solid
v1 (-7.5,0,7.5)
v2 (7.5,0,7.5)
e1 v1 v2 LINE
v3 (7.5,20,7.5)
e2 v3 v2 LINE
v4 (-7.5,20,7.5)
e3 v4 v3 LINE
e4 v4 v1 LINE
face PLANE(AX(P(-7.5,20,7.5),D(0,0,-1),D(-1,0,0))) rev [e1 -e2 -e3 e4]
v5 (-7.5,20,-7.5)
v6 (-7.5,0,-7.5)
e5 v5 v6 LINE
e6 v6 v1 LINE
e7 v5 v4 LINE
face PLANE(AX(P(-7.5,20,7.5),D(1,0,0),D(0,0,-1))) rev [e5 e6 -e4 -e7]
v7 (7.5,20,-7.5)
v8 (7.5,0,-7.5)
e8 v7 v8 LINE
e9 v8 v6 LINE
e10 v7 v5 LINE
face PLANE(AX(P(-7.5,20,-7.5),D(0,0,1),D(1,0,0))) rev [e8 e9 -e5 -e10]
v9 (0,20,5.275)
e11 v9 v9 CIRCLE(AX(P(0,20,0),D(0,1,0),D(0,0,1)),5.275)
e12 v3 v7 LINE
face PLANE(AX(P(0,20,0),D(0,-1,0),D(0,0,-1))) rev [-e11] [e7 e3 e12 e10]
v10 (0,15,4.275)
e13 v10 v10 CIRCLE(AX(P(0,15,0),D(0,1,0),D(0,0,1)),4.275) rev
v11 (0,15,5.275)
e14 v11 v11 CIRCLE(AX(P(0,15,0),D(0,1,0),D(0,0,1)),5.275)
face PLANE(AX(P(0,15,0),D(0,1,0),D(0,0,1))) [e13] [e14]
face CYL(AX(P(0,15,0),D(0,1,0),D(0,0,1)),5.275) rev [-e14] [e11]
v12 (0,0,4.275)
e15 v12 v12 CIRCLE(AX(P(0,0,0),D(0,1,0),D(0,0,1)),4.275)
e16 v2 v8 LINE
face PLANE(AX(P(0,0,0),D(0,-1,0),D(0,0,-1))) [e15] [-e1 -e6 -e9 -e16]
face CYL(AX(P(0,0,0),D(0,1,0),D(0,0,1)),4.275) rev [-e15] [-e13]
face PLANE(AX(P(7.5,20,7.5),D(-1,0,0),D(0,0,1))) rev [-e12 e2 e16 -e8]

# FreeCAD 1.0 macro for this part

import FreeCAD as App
import Part
import Sketcher

doc = App.newDocument("Part")
body = doc.addObject("PartDesign::Body", "Body")

# Sketch on XZ plane
sketch1 = body.newObject("Sketcher::SketchObject", "Sketch")
sketch1.AttachmentSupport = (doc.getObject("XZ_Plane"), [""])
sketch1.MapMode = "FlatFace"
sketch1.addGeometry([
    Part.LineSegment(App.Vector(-8, -8, 0), App.Vector(-8, 8, 0)),
    Part.LineSegment(App.Vector(-8, 8, 0), App.Vector(8, 8, 0)),
    Part.LineSegment(App.Vector(8, 8, 0), App.Vector(8, -8, 0)),
    Part.LineSegment(App.Vector(8, -8, 0), App.Vector(-8, -8, 0)),
], False)
sketch1.addConstraint([
    Sketcher.Constraint("Coincident", 0, 2, 1, 1),
    Sketcher.Constraint("Coincident", 1, 2, 2, 1),
    Sketcher.Constraint("Coincident", 2, 2, 3, 1),
    Sketcher.Constraint("Coincident", 3, 2, 0, 1),
    Sketcher.Constraint("Vertical", 0),
    Sketcher.Constraint("Horizontal", 1),
    Sketcher.Constraint("Vertical", 2),
    Sketcher.Constraint("Horizontal", 3),
    Sketcher.Constraint("Symmetric", 0, 2, 2, 2, -1, 1),
    Sketcher.Constraint("Equal", 3, 0),
    Sketcher.Constraint("DistanceX", 1, 1, 1, 2, 15.0),
])
pad1 = body.newObject("PartDesign::Pad", "Pad")
pad1.Profile = sketch1
pad1.Length = 20
pad1.Reversed = True

# Sketch on XZ plane
sketch2 = body.newObject("Sketcher::SketchObject", "Sketch001")
sketch2.AttachmentSupport = (doc.getObject("XZ_Plane"), [""])
sketch2.MapMode = "FlatFace"
sketch2.AttachmentOffset = App.Placement(App.Vector(0, 0, -20), App.Rotation())
sketch2.addGeometry(Part.Circle(App.Vector(0, 0, 0), App.Vector(0, 0, 1), 4.3), False)
sketch2.addConstraint([
    Sketcher.Constraint("Coincident", 0, 3, -1, 1),
    Sketcher.Constraint("Diameter", 0, 8.55),
])
pocket1 = body.newObject("PartDesign::Pocket", "Pocket")
pocket1.Profile = sketch2
pocket1.Length = 20
pocket1.Reversed = True

# Sketch on XZ plane
sketch3 = body.newObject("Sketcher::SketchObject", "Sketch002")
sketch3.AttachmentSupport = (doc.getObject("XZ_Plane"), [""])
sketch3.MapMode = "FlatFace"
sketch3.AttachmentOffset = App.Placement(App.Vector(0, 0, -20), App.Rotation())
sketch3.addGeometry(Part.Circle(App.Vector(0, 0, 0), App.Vector(0, 0, 1), 5), False)
sketch3.addConstraint([
    Sketcher.Constraint("Coincident", 0, 3, -1, 1),
    Sketcher.Constraint("Diameter", 0, 10.55),
])
pocket2 = body.newObject("PartDesign::Pocket", "Pocket001")
pocket2.Profile = sketch3
pocket2.Length = 5
pocket2.Reversed = True

doc.recompute()
